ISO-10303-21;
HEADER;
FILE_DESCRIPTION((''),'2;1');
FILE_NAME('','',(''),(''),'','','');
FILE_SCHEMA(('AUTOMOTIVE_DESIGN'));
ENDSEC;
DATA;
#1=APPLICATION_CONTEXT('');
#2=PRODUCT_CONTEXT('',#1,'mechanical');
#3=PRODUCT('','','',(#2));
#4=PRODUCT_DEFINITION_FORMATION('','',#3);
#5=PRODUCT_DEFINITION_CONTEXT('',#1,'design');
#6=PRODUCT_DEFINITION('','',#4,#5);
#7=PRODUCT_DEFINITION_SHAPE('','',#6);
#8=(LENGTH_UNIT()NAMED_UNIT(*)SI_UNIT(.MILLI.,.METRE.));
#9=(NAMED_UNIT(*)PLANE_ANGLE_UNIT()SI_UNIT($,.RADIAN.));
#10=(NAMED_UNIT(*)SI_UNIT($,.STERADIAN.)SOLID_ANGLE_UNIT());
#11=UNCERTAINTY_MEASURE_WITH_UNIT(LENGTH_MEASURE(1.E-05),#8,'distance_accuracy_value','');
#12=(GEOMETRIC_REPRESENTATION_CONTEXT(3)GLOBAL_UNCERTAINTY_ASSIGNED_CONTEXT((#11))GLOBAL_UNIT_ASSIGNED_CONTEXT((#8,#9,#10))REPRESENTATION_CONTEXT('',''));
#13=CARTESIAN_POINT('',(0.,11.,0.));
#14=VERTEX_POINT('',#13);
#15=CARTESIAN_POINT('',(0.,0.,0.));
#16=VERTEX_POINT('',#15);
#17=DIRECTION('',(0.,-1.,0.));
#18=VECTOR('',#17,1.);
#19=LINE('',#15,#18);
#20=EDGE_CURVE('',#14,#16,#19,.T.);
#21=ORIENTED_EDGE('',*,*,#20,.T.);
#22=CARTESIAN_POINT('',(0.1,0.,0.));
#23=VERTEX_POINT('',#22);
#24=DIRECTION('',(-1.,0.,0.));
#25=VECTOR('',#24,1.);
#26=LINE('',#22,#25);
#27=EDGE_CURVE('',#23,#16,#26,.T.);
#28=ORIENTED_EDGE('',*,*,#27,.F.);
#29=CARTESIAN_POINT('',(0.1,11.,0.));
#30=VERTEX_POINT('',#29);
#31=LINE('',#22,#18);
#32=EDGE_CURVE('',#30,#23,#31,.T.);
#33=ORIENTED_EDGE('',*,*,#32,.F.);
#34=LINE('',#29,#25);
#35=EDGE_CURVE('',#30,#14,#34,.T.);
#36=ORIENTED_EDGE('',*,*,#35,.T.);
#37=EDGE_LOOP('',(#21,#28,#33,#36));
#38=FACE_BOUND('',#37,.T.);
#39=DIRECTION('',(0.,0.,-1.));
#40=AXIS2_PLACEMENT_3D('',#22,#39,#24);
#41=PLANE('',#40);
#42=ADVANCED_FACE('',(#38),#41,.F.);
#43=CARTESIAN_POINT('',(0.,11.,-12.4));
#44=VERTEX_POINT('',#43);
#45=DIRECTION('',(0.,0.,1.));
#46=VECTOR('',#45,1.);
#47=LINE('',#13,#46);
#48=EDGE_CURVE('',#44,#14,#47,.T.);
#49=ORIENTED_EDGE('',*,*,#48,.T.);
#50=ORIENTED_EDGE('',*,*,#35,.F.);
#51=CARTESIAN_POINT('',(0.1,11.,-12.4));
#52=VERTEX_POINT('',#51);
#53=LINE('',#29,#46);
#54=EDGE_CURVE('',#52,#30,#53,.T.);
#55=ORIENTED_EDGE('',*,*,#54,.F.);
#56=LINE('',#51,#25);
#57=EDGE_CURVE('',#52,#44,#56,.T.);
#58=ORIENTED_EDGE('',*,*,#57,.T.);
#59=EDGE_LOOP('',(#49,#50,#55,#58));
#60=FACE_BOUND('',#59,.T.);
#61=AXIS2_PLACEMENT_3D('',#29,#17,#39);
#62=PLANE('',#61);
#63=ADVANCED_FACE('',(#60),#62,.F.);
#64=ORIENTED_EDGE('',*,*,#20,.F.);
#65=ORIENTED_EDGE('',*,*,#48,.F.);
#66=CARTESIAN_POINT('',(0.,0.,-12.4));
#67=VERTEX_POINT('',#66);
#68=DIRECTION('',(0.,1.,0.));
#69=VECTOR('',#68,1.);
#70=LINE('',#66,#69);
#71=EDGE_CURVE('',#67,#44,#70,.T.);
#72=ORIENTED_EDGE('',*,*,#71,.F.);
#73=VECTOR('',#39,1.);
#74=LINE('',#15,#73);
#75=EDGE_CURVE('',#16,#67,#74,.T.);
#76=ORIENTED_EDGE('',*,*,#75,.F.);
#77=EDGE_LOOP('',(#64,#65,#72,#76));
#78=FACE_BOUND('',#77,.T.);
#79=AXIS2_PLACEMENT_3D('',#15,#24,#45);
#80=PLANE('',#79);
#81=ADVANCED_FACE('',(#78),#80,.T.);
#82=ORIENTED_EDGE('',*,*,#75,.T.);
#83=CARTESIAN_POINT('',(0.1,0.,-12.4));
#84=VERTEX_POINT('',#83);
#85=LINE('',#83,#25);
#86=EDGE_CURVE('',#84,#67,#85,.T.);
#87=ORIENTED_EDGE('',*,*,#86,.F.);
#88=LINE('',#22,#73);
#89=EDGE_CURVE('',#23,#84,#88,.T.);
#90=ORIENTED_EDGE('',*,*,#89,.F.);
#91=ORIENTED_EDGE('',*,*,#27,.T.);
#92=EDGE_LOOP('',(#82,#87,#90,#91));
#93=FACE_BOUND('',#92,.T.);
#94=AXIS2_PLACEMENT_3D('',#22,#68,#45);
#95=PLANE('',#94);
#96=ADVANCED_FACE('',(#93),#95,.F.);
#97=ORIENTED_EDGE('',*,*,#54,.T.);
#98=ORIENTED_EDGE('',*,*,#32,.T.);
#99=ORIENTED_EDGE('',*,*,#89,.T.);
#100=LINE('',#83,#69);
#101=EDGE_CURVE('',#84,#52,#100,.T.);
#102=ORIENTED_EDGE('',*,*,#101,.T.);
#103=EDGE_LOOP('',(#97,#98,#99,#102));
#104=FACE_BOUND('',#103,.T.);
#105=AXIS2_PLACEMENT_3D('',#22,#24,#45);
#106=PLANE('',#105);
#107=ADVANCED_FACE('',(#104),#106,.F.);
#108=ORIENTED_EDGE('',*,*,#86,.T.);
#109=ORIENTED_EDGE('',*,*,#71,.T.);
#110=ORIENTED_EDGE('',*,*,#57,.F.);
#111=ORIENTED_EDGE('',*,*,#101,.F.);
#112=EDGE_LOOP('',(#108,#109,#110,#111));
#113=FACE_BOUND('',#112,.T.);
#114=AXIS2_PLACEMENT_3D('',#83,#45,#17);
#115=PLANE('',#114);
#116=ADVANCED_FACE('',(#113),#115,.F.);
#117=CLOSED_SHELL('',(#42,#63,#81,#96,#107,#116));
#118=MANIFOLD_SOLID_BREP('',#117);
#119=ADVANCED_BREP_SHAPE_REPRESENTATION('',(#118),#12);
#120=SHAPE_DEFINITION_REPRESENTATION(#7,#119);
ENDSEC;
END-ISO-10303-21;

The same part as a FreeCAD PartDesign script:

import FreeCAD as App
import Part
import Sketcher

V = App.Vector
Q = App.Units.Quantity


def add_polygon(sketch, points):
    """Adds a closed chain of lines whose ends are joined by coincident constraints."""
    first, n = sketch.GeometryCount, len(points)
    for a, b in zip(points, points[1:] + points[:1]):
        sketch.addGeometry(Part.LineSegment(App.Vector(*a, 0), App.Vector(*b, 0)), False)
    for i in range(n):
        sketch.addConstraint(Sketcher.Constraint("Coincident", first + i, 2, first + (i + 1) % n, 1))

doc = App.newDocument("Part")
body = doc.addObject("PartDesign::Body", "Body")

# Sketch on YZ plane
sketch1 = body.newObject("Sketcher::SketchObject", "Sketch")
sketch1.AttachmentSupport = (doc.getObject("YZ_Plane"), [""])
sketch1.MapMode = "FlatFace"
add_polygon(sketch1, [(11, 0), (0, 0), (0, -12), (11, -12)])  # lines 0-3
sketch1.addConstraint(Sketcher.Constraint("Horizontal", 0))
sketch1.addConstraint(Sketcher.Constraint("Vertical", 1))
sketch1.addConstraint(Sketcher.Constraint("Horizontal", 2))
sketch1.addConstraint(Sketcher.Constraint("Vertical", 3))
sketch1.addConstraint(Sketcher.Constraint("Coincident", 0, 2, -1, 1))
sketch1.addConstraint(Sketcher.Constraint("DistanceX", 0, 2, 0, 1, Q("11 mm")))
sketch1.addConstraint(Sketcher.Constraint("DistanceY", 1, 2, 1, 1, Q("12.4 mm")))
pad1 = body.newObject("PartDesign::Pad", "Pad")
pad1.Profile = sketch1
pad1.Length = 0.1

doc.recompute()
